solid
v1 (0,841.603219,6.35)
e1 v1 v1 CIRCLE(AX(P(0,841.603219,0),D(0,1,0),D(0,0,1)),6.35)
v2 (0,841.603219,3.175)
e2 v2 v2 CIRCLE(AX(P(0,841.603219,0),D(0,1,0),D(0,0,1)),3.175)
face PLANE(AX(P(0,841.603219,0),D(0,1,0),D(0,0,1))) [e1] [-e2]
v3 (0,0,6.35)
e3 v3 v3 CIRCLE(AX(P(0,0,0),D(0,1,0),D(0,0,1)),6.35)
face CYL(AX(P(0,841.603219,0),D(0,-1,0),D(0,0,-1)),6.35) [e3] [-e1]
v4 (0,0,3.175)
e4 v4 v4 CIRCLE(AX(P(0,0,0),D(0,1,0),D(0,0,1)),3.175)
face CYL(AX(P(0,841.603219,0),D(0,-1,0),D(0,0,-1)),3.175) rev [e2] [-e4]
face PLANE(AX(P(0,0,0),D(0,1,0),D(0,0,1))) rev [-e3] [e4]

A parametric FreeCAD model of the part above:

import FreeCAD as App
import Part
import Sketcher

V = App.Vector
Q = App.Units.Quantity

doc = App.newDocument("Part")
body = doc.addObject("PartDesign::Body", "Body")

sketch1 = doc.addObject("Sketcher::SketchObject", "Sketch")
body.addObject(sketch1)
sketch1.AttachmentSupport = (doc.XZ_Plane, [""])
sketch1.MapMode = "FlatFace"
sketch1.addGeometry(Part.Circle(V(0, 0, 0), V(0, 0, 1), 6.3), False)
sketch1.addGeometry(Part.Circle(V(0, 0, 0), V(0, 0, 1), 3.2), False)
sketch1.addConstraint(Sketcher.Constraint("Coincident", 0, 3, -1, 1))
sketch1.addConstraint(Sketcher.Constraint("Coincident", 1, 3, -1, 1))
sketch1.addConstraint(Sketcher.Constraint("Diameter", 0, Q("0.5 in")))
sketch1.addConstraint(Sketcher.Constraint("Diameter", 1, Q("0.25 in")))
pad1 = doc.addObject("PartDesign::Pad", "Pad")
body.addObject(pad1)
pad1.Profile = sketch1
pad1.Length = 841.603219
pad1.Reversed = True

doc.recompute()
